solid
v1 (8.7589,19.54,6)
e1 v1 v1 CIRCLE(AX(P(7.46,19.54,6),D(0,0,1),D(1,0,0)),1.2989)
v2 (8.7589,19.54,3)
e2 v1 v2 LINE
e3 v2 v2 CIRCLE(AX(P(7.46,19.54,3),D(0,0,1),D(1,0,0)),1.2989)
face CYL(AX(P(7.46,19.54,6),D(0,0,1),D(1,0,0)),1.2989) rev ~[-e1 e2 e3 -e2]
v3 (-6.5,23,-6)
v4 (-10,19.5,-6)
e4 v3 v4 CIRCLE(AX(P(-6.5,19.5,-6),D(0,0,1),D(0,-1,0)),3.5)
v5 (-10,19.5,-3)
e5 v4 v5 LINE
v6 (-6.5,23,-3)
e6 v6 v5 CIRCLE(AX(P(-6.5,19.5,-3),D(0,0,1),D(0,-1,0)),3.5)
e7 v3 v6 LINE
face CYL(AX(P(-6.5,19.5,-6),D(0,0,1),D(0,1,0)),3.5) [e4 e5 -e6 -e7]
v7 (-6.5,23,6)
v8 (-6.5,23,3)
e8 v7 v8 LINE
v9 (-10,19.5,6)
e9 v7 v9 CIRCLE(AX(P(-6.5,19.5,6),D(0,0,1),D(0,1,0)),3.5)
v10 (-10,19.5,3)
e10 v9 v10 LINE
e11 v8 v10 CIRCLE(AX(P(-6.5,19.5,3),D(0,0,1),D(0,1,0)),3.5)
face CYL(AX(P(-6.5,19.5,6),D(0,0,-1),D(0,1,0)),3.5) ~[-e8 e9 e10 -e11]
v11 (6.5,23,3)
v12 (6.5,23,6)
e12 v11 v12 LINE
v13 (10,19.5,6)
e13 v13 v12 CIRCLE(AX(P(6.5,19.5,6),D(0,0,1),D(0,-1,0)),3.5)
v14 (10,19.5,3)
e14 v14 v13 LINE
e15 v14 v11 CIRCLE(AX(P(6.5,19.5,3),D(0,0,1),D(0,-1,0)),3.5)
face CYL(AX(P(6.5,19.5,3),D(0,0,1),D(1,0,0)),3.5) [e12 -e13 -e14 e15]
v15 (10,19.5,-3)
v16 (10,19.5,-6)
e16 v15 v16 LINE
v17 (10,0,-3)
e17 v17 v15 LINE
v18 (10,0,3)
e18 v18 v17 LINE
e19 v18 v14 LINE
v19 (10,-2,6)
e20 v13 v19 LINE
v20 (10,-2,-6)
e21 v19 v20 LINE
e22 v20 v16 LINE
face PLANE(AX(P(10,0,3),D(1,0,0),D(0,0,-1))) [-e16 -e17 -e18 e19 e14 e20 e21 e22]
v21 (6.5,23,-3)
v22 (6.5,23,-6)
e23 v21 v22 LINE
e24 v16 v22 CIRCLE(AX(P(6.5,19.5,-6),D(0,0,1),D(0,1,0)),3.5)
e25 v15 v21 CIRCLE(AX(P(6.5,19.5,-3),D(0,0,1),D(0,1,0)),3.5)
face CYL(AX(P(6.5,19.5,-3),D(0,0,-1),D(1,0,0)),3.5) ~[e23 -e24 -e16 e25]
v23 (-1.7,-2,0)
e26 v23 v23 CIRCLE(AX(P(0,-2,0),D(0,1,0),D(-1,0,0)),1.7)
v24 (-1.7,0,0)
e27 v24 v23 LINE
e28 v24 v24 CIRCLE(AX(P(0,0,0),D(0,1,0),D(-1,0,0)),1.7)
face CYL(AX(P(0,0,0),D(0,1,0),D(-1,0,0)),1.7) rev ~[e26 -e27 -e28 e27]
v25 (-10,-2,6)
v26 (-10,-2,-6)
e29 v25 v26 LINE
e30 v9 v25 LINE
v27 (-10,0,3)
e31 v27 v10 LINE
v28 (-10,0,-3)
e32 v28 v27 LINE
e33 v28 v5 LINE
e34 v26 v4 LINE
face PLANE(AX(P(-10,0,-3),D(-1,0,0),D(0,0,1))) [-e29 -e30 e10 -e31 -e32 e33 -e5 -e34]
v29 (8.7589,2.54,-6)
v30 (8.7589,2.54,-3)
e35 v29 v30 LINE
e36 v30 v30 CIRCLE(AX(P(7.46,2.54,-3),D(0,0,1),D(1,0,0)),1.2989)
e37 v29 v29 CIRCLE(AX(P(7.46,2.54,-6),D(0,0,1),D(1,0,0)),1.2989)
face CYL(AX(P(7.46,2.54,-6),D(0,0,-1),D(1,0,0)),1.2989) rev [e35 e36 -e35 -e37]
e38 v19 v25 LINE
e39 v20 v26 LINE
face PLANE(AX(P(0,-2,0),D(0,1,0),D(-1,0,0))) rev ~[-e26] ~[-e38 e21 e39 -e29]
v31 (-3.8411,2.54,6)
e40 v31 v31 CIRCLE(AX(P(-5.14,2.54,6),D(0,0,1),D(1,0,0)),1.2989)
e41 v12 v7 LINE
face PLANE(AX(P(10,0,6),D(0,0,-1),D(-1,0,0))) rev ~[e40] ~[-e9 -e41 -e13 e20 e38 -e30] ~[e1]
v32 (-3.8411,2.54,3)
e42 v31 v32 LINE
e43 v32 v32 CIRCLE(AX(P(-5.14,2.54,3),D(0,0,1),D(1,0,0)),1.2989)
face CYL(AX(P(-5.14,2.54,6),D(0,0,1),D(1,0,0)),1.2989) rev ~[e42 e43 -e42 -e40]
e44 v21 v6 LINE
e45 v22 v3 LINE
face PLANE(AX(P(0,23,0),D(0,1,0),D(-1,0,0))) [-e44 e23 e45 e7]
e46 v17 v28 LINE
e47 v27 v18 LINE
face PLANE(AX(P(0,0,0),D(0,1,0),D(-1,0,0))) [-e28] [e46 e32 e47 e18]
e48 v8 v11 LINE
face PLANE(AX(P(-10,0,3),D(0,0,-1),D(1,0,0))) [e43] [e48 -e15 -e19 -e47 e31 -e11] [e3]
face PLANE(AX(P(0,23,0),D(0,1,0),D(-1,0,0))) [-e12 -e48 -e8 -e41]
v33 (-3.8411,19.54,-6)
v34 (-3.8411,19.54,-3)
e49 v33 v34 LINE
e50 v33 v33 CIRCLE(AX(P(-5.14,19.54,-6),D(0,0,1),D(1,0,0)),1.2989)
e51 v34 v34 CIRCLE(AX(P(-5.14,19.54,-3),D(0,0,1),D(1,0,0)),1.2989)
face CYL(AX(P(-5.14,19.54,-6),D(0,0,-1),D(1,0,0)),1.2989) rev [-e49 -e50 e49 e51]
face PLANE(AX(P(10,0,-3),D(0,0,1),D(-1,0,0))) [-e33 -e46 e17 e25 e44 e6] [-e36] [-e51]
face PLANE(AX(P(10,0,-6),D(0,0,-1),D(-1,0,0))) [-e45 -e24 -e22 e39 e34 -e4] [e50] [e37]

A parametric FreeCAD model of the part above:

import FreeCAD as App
import Part
import Sketcher
from FreeCAD import Vector
Q = App.Units.Quantity


def edges_at(feature, points):
    """Names of the edges that pass closest to the given points."""
    edges = feature.Shape.Edges
    near = lambda p: min(range(len(edges)), key=lambda i: edges[i].distToShape(Part.Vertex(*p))[0])
    return sorted({f"Edge{near(p) + 1}" for p in points})

doc = App.newDocument("Part")
body = doc.addObject("PartDesign::Body", "Body")
body.AllowCompound = True

# Sketch on XZ plane
sketch1 = doc.addObject("Sketcher::SketchObject", "Sketch")
body.addObject(sketch1)
sketch1.AttachmentSupport = (doc.XZ_Plane, [""])
sketch1.MapMode = "FlatFace"
sketch1.addGeometry(Part.LineSegment(Vector(10, 3, 0), Vector(10, -3, 0)), False)
sketch1.addGeometry(Part.LineSegment(Vector(10, -3, 0), Vector(-10, -3, 0)), False)
sketch1.addGeometry(Part.LineSegment(Vector(-10, -3, 0), Vector(-10, 3, 0)), False)
sketch1.addGeometry(Part.LineSegment(Vector(-10, 3, 0), Vector(10, 3, 0)), False)
sketch1.addGeometry(Part.Circle(Vector(0, 0, 0), Vector(0, 0, 1), 1.7), False)
sketch1.addConstraint(Sketcher.Constraint("Coincident", 0, 2, 1, 1))
sketch1.addConstraint(Sketcher.Constraint("Coincident", 1, 2, 2, 1))
sketch1.addConstraint(Sketcher.Constraint("Coincident", 2, 2, 3, 1))
sketch1.addConstraint(Sketcher.Constraint("Coincident", 3, 2, 0, 1))
sketch1.addConstraint(Sketcher.Constraint("Vertical", 0))
sketch1.addConstraint(Sketcher.Constraint("Horizontal", 1))
sketch1.addConstraint(Sketcher.Constraint("Vertical", 2))
sketch1.addConstraint(Sketcher.Constraint("Horizontal", 3))
sketch1.addConstraint(Sketcher.Constraint("Coincident", 4, 3, -1, 1))
sketch1.addConstraint(Sketcher.Constraint("Symmetric", 0, 2, 2, 2, -1, 1))
sketch1.addConstraint(Sketcher.Constraint("Diameter", 4, Q("3.4 mm")))
sketch1.addConstraint(Sketcher.Constraint("DistanceX", 1, 2, 1, 1, Q("20 mm")))
sketch1.addConstraint(Sketcher.Constraint("DistanceY", 0, 2, 0, 1, Q("6 mm")))
pad1 = doc.addObject("PartDesign::Pad", "Pad")
body.addObject(pad1)
pad1.Profile = sketch1
pad1.Length = 2

# Sketch on XZ plane
sketch2 = doc.addObject("Sketcher::SketchObject", "Sketch001")
body.addObject(sketch2)
sketch2.AttachmentSupport = (doc.XZ_Plane, [""])
sketch2.MapMode = "FlatFace"
sketch2.addGeometry(Part.LineSegment(Vector(-10, -3, 0), Vector(10, -3, 0)), False)
sketch2.addGeometry(Part.LineSegment(Vector(10, -3, 0), Vector(10, -6, 0)), False)
sketch2.addGeometry(Part.LineSegment(Vector(10, -6, 0), Vector(-10, -6, 0)), False)
sketch2.addGeometry(Part.LineSegment(Vector(-10, -6, 0), Vector(-10, -3, 0)), False)
sketch2.addGeometry(Part.LineSegment(Vector(10, 6, 0), Vector(10, 3, 0)), False)
sketch2.addGeometry(Part.LineSegment(Vector(10, 3, 0), Vector(-10, 3, 0)), False)
sketch2.addGeometry(Part.LineSegment(Vector(-10, 3, 0), Vector(-10, 6, 0)), False)
sketch2.addGeometry(Part.LineSegment(Vector(-10, 6, 0), Vector(10, 6, 0)), False)
sketch2.addConstraint(Sketcher.Constraint("Coincident", 0, 2, 1, 1))
sketch2.addConstraint(Sketcher.Constraint("Coincident", 1, 2, 2, 1))
sketch2.addConstraint(Sketcher.Constraint("Coincident", 2, 2, 3, 1))
sketch2.addConstraint(Sketcher.Constraint("Coincident", 3, 2, 0, 1))
sketch2.addConstraint(Sketcher.Constraint("Coincident", 4, 2, 5, 1))
sketch2.addConstraint(Sketcher.Constraint("Coincident", 5, 2, 6, 1))
sketch2.addConstraint(Sketcher.Constraint("Coincident", 6, 2, 7, 1))
sketch2.addConstraint(Sketcher.Constraint("Coincident", 7, 2, 4, 1))
sketch2.addConstraint(Sketcher.Constraint("Horizontal", 0))
sketch2.addConstraint(Sketcher.Constraint("Vertical", 1))
sketch2.addConstraint(Sketcher.Constraint("Horizontal", 2))
sketch2.addConstraint(Sketcher.Constraint("Vertical", 3))
sketch2.addConstraint(Sketcher.Constraint("Vertical", 4))
sketch2.addConstraint(Sketcher.Constraint("Horizontal", 5))
sketch2.addConstraint(Sketcher.Constraint("Vertical", 6))
sketch2.addConstraint(Sketcher.Constraint("Horizontal", 7))
sketch2.addConstraint(Sketcher.Constraint("Symmetric", 3, 2, 4, 2, -1, 1))
sketch2.addConstraint(Sketcher.Constraint("Symmetric", 1, 2, 6, 2, -1, 1))
sketch2.addConstraint(Sketcher.Constraint("Vertical", 1, 2, 4, 2))
sketch2.addConstraint(Sketcher.Constraint("DistanceX", 0, 1, 0, 2, Q("20 mm")))
sketch2.addConstraint(Sketcher.Constraint("DistanceY", 1, 2, 1, 1, Q("3 mm")))
sketch2.addConstraint(Sketcher.Constraint("DistanceY", 0, 2, -1, 1, Q("3 mm")))
pad2 = doc.addObject("PartDesign::Pad", "Pad001")
body.addObject(pad2)
pad2.Profile = sketch2
pad2.Length = 23
pad2.Reversed = True

# Sketch on XY plane
sketch3 = doc.addObject("Sketcher::SketchObject", "Sketch002")
body.addObject(sketch3)
sketch3.AttachmentSupport = (doc.XY_Plane, [""])
sketch3.MapMode = "FlatFace"
sketch3.AttachmentOffset = App.Placement(Vector(0, 0, 6), App.Rotation())
sketch3.addGeometry(Part.Circle(Vector(7.5, 19.5, 0), Vector(0, 0, 1), 1.3), False)
sketch3.addGeometry(Part.Circle(Vector(-5.1, 2.5, 0), Vector(0, 0, 1), 1.3), False)
sketch3.addConstraint(Sketcher.Constraint("Equal", 0, 1))
sketch3.addConstraint(Sketcher.Constraint("DistanceY", 1, 3, 0, 3, Q("17 mm")))
sketch3.addConstraint(Sketcher.Constraint("DistanceX", 1, 3, 0, 3, Q("12.6 mm")))
sketch3.addConstraint(Sketcher.Constraint("DistanceY", -1, 1, 1, 3, Q("2.54 mm")))
sketch3.addConstraint(Sketcher.Constraint("Diameter", 0, Q("2.5978 mm")))
sketch3.addConstraint(Sketcher.Constraint("DistanceX", -1, 1, 0, 3, Q("7.46 mm")))
pocket1 = doc.addObject("PartDesign::Pocket", "Pocket")
body.addObject(pocket1)
pocket1.Profile = sketch3
pocket1.Length = 3

# Sketch on XZ plane
sketch4 = doc.addObject("Sketcher::SketchObject", "Sketch003")
body.addObject(sketch4)
sketch4.AttachmentSupport = (doc.XZ_Plane, [""])
sketch4.MapMode = "FlatFace"
sketch4.addGeometry(Part.LineSegment(Vector(-10, -3, 0), Vector(10, -3, 0)), False)
sketch4.addGeometry(Part.LineSegment(Vector(10, -3, 0), Vector(10, -6, 0)), False)
sketch4.addGeometry(Part.LineSegment(Vector(10, -6, 0), Vector(-10, -6, 0)), False)
sketch4.addGeometry(Part.LineSegment(Vector(-10, -6, 0), Vector(-10, -3, 0)), False)
sketch4.addGeometry(Part.LineSegment(Vector(10, 6, 0), Vector(10, 3, 0)), False)
sketch4.addGeometry(Part.LineSegment(Vector(10, 3, 0), Vector(-10, 3, 0)), False)
sketch4.addGeometry(Part.LineSegment(Vector(-10, 3, 0), Vector(-10, 6, 0)), False)
sketch4.addGeometry(Part.LineSegment(Vector(-10, 6, 0), Vector(10, 6, 0)), False)
sketch4.addConstraint(Sketcher.Constraint("Coincident", 0, 2, 1, 1))
sketch4.addConstraint(Sketcher.Constraint("Coincident", 1, 2, 2, 1))
sketch4.addConstraint(Sketcher.Constraint("Coincident", 2, 2, 3, 1))
sketch4.addConstraint(Sketcher.Constraint("Coincident", 3, 2, 0, 1))
sketch4.addConstraint(Sketcher.Constraint("Coincident", 4, 2, 5, 1))
sketch4.addConstraint(Sketcher.Constraint("Coincident", 5, 2, 6, 1))
sketch4.addConstraint(Sketcher.Constraint("Coincident", 6, 2, 7, 1))
sketch4.addConstraint(Sketcher.Constraint("Coincident", 7, 2, 4, 1))
sketch4.addConstraint(Sketcher.Constraint("Horizontal", 0))
sketch4.addConstraint(Sketcher.Constraint("Vertical", 1))
sketch4.addConstraint(Sketcher.Constraint("Horizontal", 2))
sketch4.addConstraint(Sketcher.Constraint("Vertical", 3))
sketch4.addConstraint(Sketcher.Constraint("Vertical", 4))
sketch4.addConstraint(Sketcher.Constraint("Horizontal", 5))
sketch4.addConstraint(Sketcher.Constraint("Vertical", 6))
sketch4.addConstraint(Sketcher.Constraint("Horizontal", 7))
sketch4.addConstraint(Sketcher.Constraint("Symmetric", 3, 2, 4, 2, -1, 1))
sketch4.addConstraint(Sketcher.Constraint("Symmetric", 1, 2, 6, 2, -1, 1))
sketch4.addConstraint(Sketcher.Constraint("Vertical", 1, 2, 4, 2))
sketch4.addConstraint(Sketcher.Constraint("DistanceX", 0, 1, 0, 2, Q("20 mm")))
sketch4.addConstraint(Sketcher.Constraint("DistanceY", 1, 2, 1, 1, Q("3 mm")))
sketch4.addConstraint(Sketcher.Constraint("DistanceY", 0, 2, -1, 1, Q("3 mm")))
pad3 = doc.addObject("PartDesign::Pad", "Pad002")
body.addObject(pad3)
pad3.Profile = sketch4
pad3.Length = 2

# Sketch on XY plane
sketch5 = doc.addObject("Sketcher::SketchObject", "Sketch004")
body.addObject(sketch5)
sketch5.AttachmentSupport = (doc.XY_Plane, [""])
sketch5.MapMode = "FlatFace"
sketch5.AttachmentOffset = App.Placement(Vector(0, 0, -6), App.Rotation())
sketch5.addGeometry(Part.Circle(Vector(7.5, 2.5, 0), Vector(0, 0, 1), 1.3), False)
sketch5.addGeometry(Part.Circle(Vector(-5.1, 19.5, 0), Vector(0, 0, 1), 1.3), False)
sketch5.addConstraint(Sketcher.Constraint("Equal", 0, 1))
sketch5.addConstraint(Sketcher.Constraint("DistanceY", 0, 3, 1, 3, Q("17 mm")))
sketch5.addConstraint(Sketcher.Constraint("DistanceX", 1, 3, 0, 3, Q("12.6 mm")))
sketch5.addConstraint(Sketcher.Constraint("DistanceY", -1, 1, 0, 3, Q("2.54 mm")))
sketch5.addConstraint(Sketcher.Constraint("Diameter", 0, Q("2.5978 mm")))
sketch5.addConstraint(Sketcher.Constraint("DistanceX", -1, 1, 0, 3, Q("7.46 mm")))
pocket2 = doc.addObject("PartDesign::Pocket", "Pocket001")
body.addObject(pocket2)
pocket2.Profile = sketch5
pocket2.Length = 3
pocket2.Reversed = True
doc.recompute()

fillet = doc.addObject("PartDesign::Fillet", "Fillet")
body.addObject(fillet)
fillet.Base = (pocket2, edges_at(pocket2, [
    (-10, 23, 4.5),
    (-10, 23, -4.5),
    (10, 23, -4.5),
    (10, 23, 4.5),
]))
fillet.Radius = 3.5

doc.recompute()
